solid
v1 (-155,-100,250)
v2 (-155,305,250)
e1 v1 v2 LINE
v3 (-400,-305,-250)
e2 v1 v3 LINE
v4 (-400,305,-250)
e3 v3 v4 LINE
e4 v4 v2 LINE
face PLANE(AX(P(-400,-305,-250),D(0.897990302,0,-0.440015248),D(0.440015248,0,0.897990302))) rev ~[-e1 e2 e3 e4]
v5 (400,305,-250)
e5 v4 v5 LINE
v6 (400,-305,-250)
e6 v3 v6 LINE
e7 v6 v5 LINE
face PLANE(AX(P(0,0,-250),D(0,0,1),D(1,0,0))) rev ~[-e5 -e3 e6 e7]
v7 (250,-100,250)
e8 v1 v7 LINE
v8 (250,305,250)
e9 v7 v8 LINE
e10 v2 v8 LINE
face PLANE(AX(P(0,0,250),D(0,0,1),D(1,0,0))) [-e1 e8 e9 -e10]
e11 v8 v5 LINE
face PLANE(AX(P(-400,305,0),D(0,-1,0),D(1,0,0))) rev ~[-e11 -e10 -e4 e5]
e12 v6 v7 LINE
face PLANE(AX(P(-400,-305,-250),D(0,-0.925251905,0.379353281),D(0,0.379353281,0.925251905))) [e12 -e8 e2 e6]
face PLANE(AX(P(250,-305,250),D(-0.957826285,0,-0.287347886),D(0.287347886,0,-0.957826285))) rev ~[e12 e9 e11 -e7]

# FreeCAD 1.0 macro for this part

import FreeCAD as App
import Part
import Sketcher

V = App.Vector


def add_polygon(sketch, points):
    """Adds a closed chain of lines whose ends are joined by coincident constraints."""
    first, n = sketch.GeometryCount, len(points)
    for a, b in zip(points, points[1:] + points[:1]):
        sketch.addGeometry(Part.LineSegment(App.Vector(*a, 0), App.Vector(*b, 0)), False)
    for i in range(n):
        sketch.addConstraint(Sketcher.Constraint("Coincident", first + i, 2, first + (i + 1) % n, 1))

doc = App.newDocument("Part")
body = doc.addObject("PartDesign::Body", "Body")

# Sketch on XY plane
sketch1 = body.newObject("Sketcher::SketchObject", "Sketch")
sketch1.AttachmentSupport = (doc.getObject("XY_Plane"), [""])
sketch1.MapMode = "FlatFace"
add_polygon(sketch1, [(-400, 305), (-400, -305), (400, -305), (400, 305)])  # lines 0-3
sketch1.addConstraint([
    Sketcher.Constraint("Vertical", 0),
    Sketcher.Constraint("Horizontal", 1),
    Sketcher.Constraint("Vertical", 2),
    Sketcher.Constraint("Horizontal", 3),
    Sketcher.Constraint("Symmetric", 0, 2, 2, 2, -1, 1),
    Sketcher.Constraint("DistanceX", 1, 1, 1, 2, 800.0),
    Sketcher.Constraint("DistanceY", 0, 2, 0, 1, 610.0),
])
pad1 = body.newObject("PartDesign::Pad", "Pad")
pad1.Profile = sketch1
pad1.Length = 500
pad1.Midplane = True

# Sketch on XZ plane
sketch2 = body.newObject("Sketcher::SketchObject", "Sketch001")
sketch2.AttachmentSupport = (doc.getObject("XZ_Plane"), [""])
sketch2.MapMode = "FlatFace"
sketch2.AttachmentOffset = App.Placement(V(0, 0, 305), App.Rotation())
add_polygon(sketch2, [(-155, 250), (-400, 250), (-400, -250)])  # lines 0-2
add_polygon(sketch2, [(400, 250), (250, 250), (400, -250)])  # lines 3-5
sketch2.addConstraint([
    Sketcher.Constraint("Horizontal", 0),
    Sketcher.Constraint("Vertical", 1),
    Sketcher.Constraint("Horizontal", 3),
    Sketcher.Constraint("Vertical", 5),
    Sketcher.Constraint("Symmetric", 0, 2, 4, 2, -1, 1),
    Sketcher.Constraint("Horizontal", 2, 2, 3, 2),
    Sketcher.Constraint("Horizontal", 1, 2, 4, 2),
    Sketcher.Constraint("DistanceX", 0, 2, 0, 1, 245.0),
    Sketcher.Constraint("DistanceX", 3, 2, 3, 1, 150.0),
    Sketcher.Constraint("DistanceY", 1, 2, 1, 1, 500.0),
    Sketcher.Constraint("DistanceX", 0, 2, -1, 1, 400.0),
])
pocket1 = body.newObject("PartDesign::Pocket", "Pocket")
pocket1.Profile = sketch2
pocket1.Type = "ThroughAll"

# Sketch on YZ plane
sketch3 = body.newObject("Sketcher::SketchObject", "Sketch002")
sketch3.AttachmentSupport = (doc.getObject("YZ_Plane"), [""])
sketch3.MapMode = "FlatFace"
sketch3.AttachmentOffset = App.Placement(V(0, 0, -400), App.Rotation())
add_polygon(sketch3, [(-305, -250), (-100, 250), (-305, 250)])  # lines 0-2
sketch3.addConstraint([
    Sketcher.Constraint("Horizontal", 1),
    Sketcher.Constraint("Vertical", 2),
    Sketcher.Constraint("DistanceX", 1, 2, 1, 1, 205.0),
    Sketcher.Constraint("DistanceY", 2, 2, 2, 1, 500.0),
    Sketcher.Constraint("DistanceX", 0, 2, -1, 1, 100.0),
    Sketcher.Constraint("DistanceY", -1, 1, 0, 2, 250.0),
])
pocket2 = body.newObject("PartDesign::Pocket", "Pocket001")
pocket2.Profile = sketch3
pocket2.Type = "ThroughAll"
pocket2.Reversed = True

doc.recompute()
